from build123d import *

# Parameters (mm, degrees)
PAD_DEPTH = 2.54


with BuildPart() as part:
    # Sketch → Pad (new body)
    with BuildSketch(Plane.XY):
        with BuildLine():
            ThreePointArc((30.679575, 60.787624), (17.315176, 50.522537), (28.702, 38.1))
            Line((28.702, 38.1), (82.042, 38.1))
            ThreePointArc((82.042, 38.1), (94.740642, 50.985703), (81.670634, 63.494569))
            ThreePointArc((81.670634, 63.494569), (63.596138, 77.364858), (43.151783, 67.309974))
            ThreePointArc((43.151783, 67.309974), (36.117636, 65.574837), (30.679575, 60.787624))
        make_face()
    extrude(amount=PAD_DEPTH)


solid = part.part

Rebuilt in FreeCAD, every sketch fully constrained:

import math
import FreeCAD as App
import Part
import Sketcher

V = App.Vector
Q = App.Units.Quantity

doc = App.newDocument("Part")
params = doc.addObject("Spreadsheet::Sheet", "Params")
for row, (alias, value) in enumerate([
    ("sketch1_radius", "0.5 in"),
    ("sketch1_radius2", "0.5999999 in"),
    ("sketch1_radius3", "0.45 in"),
    ("sketch1_radius4", "0.85 in"),
    ("sketch1_width", "2.1 in"),
    ("pad1_length", "0.1 in"),
], start=1):
    params.set(f"A{row}", alias)
    params.set(f"B{row}", "=" + value)
    params.setAlias(f"B{row}", alias)

body = doc.addObject("PartDesign::Body", "Body")

# Sketch on XY plane
sketch1 = body.newObject("Sketcher::SketchObject", "Sketch")
sketch1.AttachmentSupport = (doc.getObject("XY_Plane"), [""])
sketch1.MapMode = "FlatFace"
sketch1.addGeometry([
    Part.ArcOfCircle(Part.Circle(V(29, 50, 0), V(0, 0, 1), 11), math.radians(80), math.radians(270)),  # 0
    Part.LineSegment(V(29, 38, 0), V(82, 38, 0)),  # 1
    Part.ArcOfCircle(Part.Circle(V(82, 51, 0), V(0, 0, 1), 13), math.radians(-90), math.radians(92)),  # 2
    Part.ArcOfCircle(Part.Circle(V(61, 56, 0), V(0, 0, 1), 22), math.radians(21), math.radians(148)),  # 3
    Part.ArcOfCircle(Part.Circle(V(43, 52, 0), V(0, 0, 1), 15), math.radians(90), math.radians(145)),  # 4
], False)
sketch1.addConstraint([
    Sketcher.Constraint("Tangent", 0, 2, 1, 1),
    Sketcher.Constraint("Tangent", 1, 2, 2, 1),
    Sketcher.Constraint("Coincident", 2, 2, 3, 1),
    Sketcher.Constraint("Coincident", 3, 2, 4, 1),
    Sketcher.Constraint("Coincident", 4, 2, 0, 1),
    Sketcher.Constraint("Horizontal", 1),
    Sketcher.Constraint("Radius", 2, Q("0.5 in")),
    Sketcher.Constraint("Radius", 4, Q("0.5999999 in")),
    Sketcher.Constraint("Radius", 0, Q("0.45 in")),
    Sketcher.Constraint("Radius", 3, Q("0.85 in")),
    Sketcher.Constraint("DistanceX", 1, 1, 1, 2, Q("2.1 in")),
    Sketcher.Constraint("DistanceY", -1, 1, 2, 3, Q("2 in")),
    Sketcher.Constraint("DistanceY", -1, 1, 3, 3, Q("2.2 in")),
    Sketcher.Constraint("DistanceX", -1, 1, 4, 3, Q("1.7 in")),
    Sketcher.Constraint("DistanceY", 0, 3, 4, 3, Q("0.1000001 in")),
    Sketcher.Constraint("DistanceX", -1, 1, 0, 3, Q("1.13 in")),
    Sketcher.Constraint("DistanceX", -1, 1, 3, 3, Q("2.42 in")),
])
sketch1.setExpression("Constraints[6]", "Params.sketch1_radius")
sketch1.setExpression("Constraints[7]", "Params.sketch1_radius2")
sketch1.setExpression("Constraints[8]", "Params.sketch1_radius3")
sketch1.setExpression("Constraints[9]", "Params.sketch1_radius4")
sketch1.setExpression("Constraints[10]", "Params.sketch1_width")
pad1 = body.newObject("PartDesign::Pad", "Pad")
pad1.Profile = sketch1
pad1.setExpression("Length", "Params.pad1_length")

doc.recompute()
